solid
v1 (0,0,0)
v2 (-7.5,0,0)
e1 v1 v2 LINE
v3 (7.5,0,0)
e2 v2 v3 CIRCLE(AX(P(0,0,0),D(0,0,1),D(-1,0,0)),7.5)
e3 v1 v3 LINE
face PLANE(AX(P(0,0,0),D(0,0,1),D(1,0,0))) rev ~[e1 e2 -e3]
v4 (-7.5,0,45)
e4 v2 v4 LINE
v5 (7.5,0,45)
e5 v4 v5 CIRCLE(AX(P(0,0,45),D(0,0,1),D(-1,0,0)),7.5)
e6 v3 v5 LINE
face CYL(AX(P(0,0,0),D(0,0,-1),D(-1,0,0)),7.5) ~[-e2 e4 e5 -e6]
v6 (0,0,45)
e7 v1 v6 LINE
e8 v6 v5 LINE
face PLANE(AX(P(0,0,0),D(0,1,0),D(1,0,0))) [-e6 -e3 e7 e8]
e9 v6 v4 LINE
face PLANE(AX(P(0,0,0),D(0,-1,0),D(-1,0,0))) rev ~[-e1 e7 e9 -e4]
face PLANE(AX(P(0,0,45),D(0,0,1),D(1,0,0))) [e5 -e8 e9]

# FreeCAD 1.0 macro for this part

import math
import FreeCAD as App
import Part
import Sketcher
Q = App.Units.Quantity

doc = App.newDocument("Part")
body = doc.addObject("PartDesign::Body", "Body")

sketch1 = body.newObject("Sketcher::SketchObject", "Sketch")
sketch1.AttachmentSupport = (doc.getObject("XY_Plane"), [""])
sketch1.MapMode = "FlatFace"
sketch1.addGeometry([
    Part.LineSegment(App.Vector(8, 0, 0), App.Vector(-8, 0, 0)),
    Part.ArcOfCircle(Part.Circle(App.Vector(0, 0, 0), App.Vector(0, 0, 1), 8), math.radians(180), math.radians(360)),
], False)
sketch1.addConstraint([
    Sketcher.Constraint("Coincident", 0, 1, 1, 2),
    Sketcher.Constraint("Coincident", 1, 1, 0, 2),
    Sketcher.Constraint("Horizontal", 0),
    Sketcher.Constraint("Coincident", 1, 3, -1, 1),
    Sketcher.Constraint("PointOnObject", 0, 1, -1),
    Sketcher.Constraint("Radius", 1, Q("7.5 mm")),
])
pad1 = body.newObject("PartDesign::Pad", "Pad")
pad1.Profile = sketch1
pad1.Length = 45

doc.recompute()
